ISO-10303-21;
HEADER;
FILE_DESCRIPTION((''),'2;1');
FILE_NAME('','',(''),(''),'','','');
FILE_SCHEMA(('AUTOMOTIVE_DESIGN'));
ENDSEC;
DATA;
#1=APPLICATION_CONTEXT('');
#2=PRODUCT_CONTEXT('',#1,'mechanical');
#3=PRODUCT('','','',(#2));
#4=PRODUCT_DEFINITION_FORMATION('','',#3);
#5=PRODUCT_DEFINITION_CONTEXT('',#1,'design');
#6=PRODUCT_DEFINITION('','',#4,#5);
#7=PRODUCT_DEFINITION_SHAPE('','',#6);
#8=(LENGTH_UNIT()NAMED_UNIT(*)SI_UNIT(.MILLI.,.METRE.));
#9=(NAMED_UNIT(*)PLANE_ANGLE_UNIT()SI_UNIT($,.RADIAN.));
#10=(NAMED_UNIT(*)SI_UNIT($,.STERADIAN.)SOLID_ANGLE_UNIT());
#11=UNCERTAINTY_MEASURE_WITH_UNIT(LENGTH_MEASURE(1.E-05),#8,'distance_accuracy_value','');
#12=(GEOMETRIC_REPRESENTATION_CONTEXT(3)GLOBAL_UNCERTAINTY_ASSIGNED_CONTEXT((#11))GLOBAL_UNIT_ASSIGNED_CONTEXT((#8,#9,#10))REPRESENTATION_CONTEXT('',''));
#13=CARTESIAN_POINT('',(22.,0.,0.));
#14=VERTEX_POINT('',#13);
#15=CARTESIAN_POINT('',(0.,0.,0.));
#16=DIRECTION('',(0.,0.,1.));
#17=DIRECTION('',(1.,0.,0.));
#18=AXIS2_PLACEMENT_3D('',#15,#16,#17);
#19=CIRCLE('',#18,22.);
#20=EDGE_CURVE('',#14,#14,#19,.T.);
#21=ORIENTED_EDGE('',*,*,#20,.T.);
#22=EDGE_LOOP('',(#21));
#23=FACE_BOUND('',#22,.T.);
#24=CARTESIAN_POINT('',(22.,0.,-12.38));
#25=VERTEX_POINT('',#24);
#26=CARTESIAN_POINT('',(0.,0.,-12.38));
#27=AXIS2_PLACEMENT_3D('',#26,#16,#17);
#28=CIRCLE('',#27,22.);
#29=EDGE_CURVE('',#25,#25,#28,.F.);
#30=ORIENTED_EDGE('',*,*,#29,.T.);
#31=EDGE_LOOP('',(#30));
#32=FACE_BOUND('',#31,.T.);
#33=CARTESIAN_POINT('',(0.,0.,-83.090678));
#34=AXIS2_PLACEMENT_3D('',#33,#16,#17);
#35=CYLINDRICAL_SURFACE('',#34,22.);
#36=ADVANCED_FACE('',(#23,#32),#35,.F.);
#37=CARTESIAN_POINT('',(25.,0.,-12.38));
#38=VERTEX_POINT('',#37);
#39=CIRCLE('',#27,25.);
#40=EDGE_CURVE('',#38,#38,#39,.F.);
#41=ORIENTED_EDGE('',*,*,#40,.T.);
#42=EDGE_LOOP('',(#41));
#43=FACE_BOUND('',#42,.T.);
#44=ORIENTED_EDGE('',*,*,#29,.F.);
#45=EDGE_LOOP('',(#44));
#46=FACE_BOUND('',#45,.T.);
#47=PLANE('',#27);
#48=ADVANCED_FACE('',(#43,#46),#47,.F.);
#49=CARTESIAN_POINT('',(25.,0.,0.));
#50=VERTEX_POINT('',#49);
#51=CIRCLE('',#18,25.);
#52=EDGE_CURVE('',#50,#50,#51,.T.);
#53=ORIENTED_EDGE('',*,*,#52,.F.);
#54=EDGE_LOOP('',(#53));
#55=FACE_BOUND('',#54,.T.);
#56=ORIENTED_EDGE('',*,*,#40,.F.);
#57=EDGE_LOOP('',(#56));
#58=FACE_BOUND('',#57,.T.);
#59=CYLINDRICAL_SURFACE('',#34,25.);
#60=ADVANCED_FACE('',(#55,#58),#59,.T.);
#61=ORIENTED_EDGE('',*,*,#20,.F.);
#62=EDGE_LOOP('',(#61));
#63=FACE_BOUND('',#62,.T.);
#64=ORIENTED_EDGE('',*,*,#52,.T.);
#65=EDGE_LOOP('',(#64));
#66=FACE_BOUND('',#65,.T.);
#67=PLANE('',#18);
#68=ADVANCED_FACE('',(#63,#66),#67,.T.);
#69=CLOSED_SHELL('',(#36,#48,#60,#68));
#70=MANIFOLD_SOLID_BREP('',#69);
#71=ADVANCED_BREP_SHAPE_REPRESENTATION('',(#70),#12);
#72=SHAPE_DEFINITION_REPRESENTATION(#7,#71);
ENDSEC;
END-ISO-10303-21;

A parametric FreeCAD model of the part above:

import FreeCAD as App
import Part
import Sketcher

V = App.Vector
Q = App.Units.Quantity

doc = App.newDocument("Part")
body = doc.addObject("PartDesign::Body", "Body")

# Sketch on XY plane
sketch1 = body.newObject("Sketcher::SketchObject", "Sketch")
sketch1.AttachmentSupport = (doc.getObject("XY_Plane"), [""])
sketch1.MapMode = "FlatFace"
sketch1.addGeometry([
    Part.Circle(V(0, 0, 0), V(0, 0, 1), 25),
    Part.Circle(V(0, 0, 0), V(0, 0, 1), 22),
], False)
sketch1.addConstraint([
    Sketcher.Constraint("Coincident", 0, 3, -1, 1),
    Sketcher.Constraint("Coincident", 1, 3, -1, 1),
    Sketcher.Constraint("Diameter", 0, Q("50 mm")),
    Sketcher.Constraint("Diameter", 1, Q("44 mm")),
])
pad1 = body.newObject("PartDesign::Pad", "Pad")
pad1.Profile = sketch1
pad1.Length = 12.38
pad1.Reversed = True

doc.recompute()
